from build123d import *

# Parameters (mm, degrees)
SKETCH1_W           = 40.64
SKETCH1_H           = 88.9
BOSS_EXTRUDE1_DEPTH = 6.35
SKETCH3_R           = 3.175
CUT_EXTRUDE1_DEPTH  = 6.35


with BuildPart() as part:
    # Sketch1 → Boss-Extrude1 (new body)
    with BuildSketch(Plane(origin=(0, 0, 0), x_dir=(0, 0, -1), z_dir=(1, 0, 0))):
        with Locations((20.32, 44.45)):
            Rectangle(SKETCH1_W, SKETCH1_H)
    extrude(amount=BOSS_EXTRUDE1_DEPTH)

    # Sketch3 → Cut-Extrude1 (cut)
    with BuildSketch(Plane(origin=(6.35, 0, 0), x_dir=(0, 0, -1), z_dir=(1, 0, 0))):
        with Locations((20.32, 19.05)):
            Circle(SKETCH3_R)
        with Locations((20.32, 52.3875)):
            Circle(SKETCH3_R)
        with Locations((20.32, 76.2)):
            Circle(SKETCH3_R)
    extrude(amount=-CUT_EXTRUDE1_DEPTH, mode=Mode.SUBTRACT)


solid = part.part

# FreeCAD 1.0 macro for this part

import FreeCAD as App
import Part
import Sketcher
Q = App.Units.Quantity

doc = App.newDocument("Part")
params = doc.addObject("Spreadsheet::Sheet", "Params")
for row, (alias, value) in enumerate([
    ("sketch1_width", "3.5 in"),
    ("sketch1_height", "1.6 in"),
    ("pad1_length", "0.25 in"),
    ("sketch2_diameter", "0.25 in"),
    ("pocket1_length", "0.25 in"),
], start=1):
    params.set(f"A{row}", alias)
    params.set(f"B{row}", "=" + value)
    params.setAlias(f"B{row}", alias)

body = doc.addObject("PartDesign::Body", "Body")

# Sketch on YZ plane
sketch1 = doc.addObject("Sketcher::SketchObject", "Sketch")
body.addObject(sketch1)
sketch1.AttachmentSupport = (doc.YZ_Plane, [""])
sketch1.MapMode = "FlatFace"
sketch1.addGeometry(Part.LineSegment(App.Vector(89, 0, 0), App.Vector(0, 0, 0)), False)
sketch1.addGeometry(Part.LineSegment(App.Vector(0, 0, 0), App.Vector(0, -41, 0)), False)
sketch1.addGeometry(Part.LineSegment(App.Vector(0, -41, 0), App.Vector(89, -41, 0)), False)
sketch1.addGeometry(Part.LineSegment(App.Vector(89, -41, 0), App.Vector(89, 0, 0)), False)
sketch1.addConstraint(Sketcher.Constraint("Coincident", 0, 2, 1, 1))
sketch1.addConstraint(Sketcher.Constraint("Coincident", 1, 2, 2, 1))
sketch1.addConstraint(Sketcher.Constraint("Coincident", 2, 2, 3, 1))
sketch1.addConstraint(Sketcher.Constraint("Coincident", 3, 2, 0, 1))
sketch1.addConstraint(Sketcher.Constraint("Horizontal", 0))
sketch1.addConstraint(Sketcher.Constraint("Vertical", 1))
sketch1.addConstraint(Sketcher.Constraint("Horizontal", 2))
sketch1.addConstraint(Sketcher.Constraint("Vertical", 3))
sketch1.addConstraint(Sketcher.Constraint("Coincident", 0, 2, -1, 1))
sketch1.addConstraint(Sketcher.Constraint("DistanceX", 0, 2, 0, 1, Q("3.5 in")))
sketch1.addConstraint(Sketcher.Constraint("DistanceY", 1, 2, 1, 1, Q("1.6 in")))
sketch1.setExpression("Constraints[9]", "Params.sketch1_width")
sketch1.setExpression("Constraints[10]", "Params.sketch1_height")
pad1 = doc.addObject("PartDesign::Pad", "Pad")
body.addObject(pad1)
pad1.Profile = sketch1
pad1.setExpression("Length", "Params.pad1_length")

# Sketch on YZ plane
sketch2 = doc.addObject("Sketcher::SketchObject", "Sketch001")
body.addObject(sketch2)
sketch2.AttachmentSupport = (doc.YZ_Plane, [""])
sketch2.MapMode = "FlatFace"
sketch2.AttachmentOffset = App.Placement(App.Vector(0, 0, 0.25 * 25.4), App.Rotation())
sketch2.addGeometry(Part.Circle(App.Vector(19.1, -20.3, 0), App.Vector(0, 0, 1), 3.2), False)
sketch2.addGeometry(Part.Circle(App.Vector(52.4, -20.3, 0), App.Vector(0, 0, 1), 3.2), False)
sketch2.addGeometry(Part.Circle(App.Vector(76.2, -20.3, 0), App.Vector(0, 0, 1), 3.2), False)
sketch2.addConstraint(Sketcher.Constraint("Equal", 0, 1))
sketch2.addConstraint(Sketcher.Constraint("Equal", 1, 2))
sketch2.addConstraint(Sketcher.Constraint("Horizontal", 0, 3, 1, 3))
sketch2.addConstraint(Sketcher.Constraint("Horizontal", 1, 3, 2, 3))
sketch2.addConstraint(Sketcher.Constraint("Diameter", 0, Q("0.25 in")))
sketch2.addConstraint(Sketcher.Constraint("DistanceX", -1, 1, 2, 3, Q("3 in")))
sketch2.addConstraint(Sketcher.Constraint("DistanceY", 0, 3, -1, 1, Q("0.8 in")))
sketch2.addConstraint(Sketcher.Constraint("DistanceX", -1, 1, 0, 3, Q("0.75 in")))
sketch2.addConstraint(Sketcher.Constraint("DistanceX", -1, 1, 1, 3, Q("2.0625 in")))
sketch2.setExpression("Constraints[4]", "Params.sketch2_diameter")
pocket1 = doc.addObject("PartDesign::Pocket", "Pocket")
body.addObject(pocket1)
pocket1.Profile = sketch2
pocket1.setExpression("Length", "Params.pocket1_length")

doc.recompute()
